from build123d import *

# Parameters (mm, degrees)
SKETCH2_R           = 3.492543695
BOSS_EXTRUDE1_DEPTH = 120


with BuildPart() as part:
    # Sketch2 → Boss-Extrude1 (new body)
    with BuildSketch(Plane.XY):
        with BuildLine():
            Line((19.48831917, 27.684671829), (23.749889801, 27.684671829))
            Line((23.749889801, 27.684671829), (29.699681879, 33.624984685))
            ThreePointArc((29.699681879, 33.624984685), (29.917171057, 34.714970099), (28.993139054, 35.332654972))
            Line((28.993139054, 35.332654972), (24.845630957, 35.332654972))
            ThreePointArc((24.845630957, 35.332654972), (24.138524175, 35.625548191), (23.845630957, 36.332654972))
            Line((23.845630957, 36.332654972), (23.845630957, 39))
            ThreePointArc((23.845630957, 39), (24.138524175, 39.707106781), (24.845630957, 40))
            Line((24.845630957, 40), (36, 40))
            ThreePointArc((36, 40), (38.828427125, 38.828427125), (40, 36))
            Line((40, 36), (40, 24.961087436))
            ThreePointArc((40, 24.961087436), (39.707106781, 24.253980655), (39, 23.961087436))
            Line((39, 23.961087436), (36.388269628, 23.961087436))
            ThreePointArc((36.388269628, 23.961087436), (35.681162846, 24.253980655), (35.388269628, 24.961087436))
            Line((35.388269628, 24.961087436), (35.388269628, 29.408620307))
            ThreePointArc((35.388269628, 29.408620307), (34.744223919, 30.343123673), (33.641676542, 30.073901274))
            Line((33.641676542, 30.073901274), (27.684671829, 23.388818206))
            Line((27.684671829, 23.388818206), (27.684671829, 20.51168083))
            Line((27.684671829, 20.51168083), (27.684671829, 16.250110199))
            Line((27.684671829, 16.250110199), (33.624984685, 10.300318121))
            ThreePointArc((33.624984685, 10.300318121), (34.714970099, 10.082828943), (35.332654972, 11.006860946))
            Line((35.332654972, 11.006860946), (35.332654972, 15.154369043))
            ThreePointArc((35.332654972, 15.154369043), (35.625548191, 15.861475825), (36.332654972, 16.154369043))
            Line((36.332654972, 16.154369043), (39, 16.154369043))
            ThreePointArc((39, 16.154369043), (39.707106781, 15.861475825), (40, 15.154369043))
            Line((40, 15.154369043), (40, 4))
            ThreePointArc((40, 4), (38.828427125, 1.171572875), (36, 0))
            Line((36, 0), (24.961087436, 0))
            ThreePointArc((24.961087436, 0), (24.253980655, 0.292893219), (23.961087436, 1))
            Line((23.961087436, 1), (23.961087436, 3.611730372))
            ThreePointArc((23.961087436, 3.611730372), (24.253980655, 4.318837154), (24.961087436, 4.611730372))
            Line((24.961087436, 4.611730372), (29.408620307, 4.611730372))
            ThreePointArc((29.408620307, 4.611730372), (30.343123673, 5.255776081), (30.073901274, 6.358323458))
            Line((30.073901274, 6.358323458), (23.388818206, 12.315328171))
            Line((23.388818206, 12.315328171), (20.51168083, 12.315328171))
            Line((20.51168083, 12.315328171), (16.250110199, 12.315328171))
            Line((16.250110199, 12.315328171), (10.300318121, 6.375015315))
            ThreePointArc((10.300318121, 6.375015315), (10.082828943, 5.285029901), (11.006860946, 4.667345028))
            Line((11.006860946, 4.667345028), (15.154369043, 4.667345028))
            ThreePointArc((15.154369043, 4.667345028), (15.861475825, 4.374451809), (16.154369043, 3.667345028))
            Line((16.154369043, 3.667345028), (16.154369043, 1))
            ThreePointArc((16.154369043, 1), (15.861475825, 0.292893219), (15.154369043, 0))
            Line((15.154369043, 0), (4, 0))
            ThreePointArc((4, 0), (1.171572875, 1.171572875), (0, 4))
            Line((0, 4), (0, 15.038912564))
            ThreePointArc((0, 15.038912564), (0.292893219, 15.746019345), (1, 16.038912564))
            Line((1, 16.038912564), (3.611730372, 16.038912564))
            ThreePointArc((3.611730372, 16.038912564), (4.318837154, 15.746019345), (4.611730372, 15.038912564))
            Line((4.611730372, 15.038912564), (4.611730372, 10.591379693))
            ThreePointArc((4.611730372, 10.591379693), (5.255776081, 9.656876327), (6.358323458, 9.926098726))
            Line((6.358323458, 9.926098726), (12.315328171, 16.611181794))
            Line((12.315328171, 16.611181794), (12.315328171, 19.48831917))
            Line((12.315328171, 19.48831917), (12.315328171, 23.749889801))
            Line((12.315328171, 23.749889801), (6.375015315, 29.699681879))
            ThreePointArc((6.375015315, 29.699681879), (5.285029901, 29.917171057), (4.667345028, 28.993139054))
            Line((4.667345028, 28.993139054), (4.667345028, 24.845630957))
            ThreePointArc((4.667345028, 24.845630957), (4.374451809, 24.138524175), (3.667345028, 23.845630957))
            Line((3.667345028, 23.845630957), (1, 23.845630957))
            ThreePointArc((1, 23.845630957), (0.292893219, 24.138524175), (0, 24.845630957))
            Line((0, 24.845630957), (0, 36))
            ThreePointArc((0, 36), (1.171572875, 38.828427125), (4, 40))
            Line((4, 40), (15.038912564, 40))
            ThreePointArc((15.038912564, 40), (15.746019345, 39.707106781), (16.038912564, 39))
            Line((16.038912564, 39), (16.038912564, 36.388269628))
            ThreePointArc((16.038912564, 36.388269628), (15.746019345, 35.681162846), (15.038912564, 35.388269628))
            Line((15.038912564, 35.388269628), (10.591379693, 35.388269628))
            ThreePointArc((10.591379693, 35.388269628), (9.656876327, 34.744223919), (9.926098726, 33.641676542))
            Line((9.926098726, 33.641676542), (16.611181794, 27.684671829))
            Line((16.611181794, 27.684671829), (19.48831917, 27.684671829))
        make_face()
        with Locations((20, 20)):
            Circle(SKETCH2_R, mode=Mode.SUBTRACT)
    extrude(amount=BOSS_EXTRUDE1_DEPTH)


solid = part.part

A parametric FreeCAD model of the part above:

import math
import FreeCAD as App
import Part
import Sketcher

doc = App.newDocument("Part")
body = doc.addObject("PartDesign::Body", "Body")

sketch1 = body.newObject("Sketcher::SketchObject", "Sketch")
sketch1.AttachmentSupport = (doc.getObject("XY_Plane"), [""])
sketch1.MapMode = "FlatFace"
sketch1.addGeometry(Part.LineSegment(App.Vector(29.7, 33.6, 0), App.Vector(23.7, 27.7, 0)), False)
sketch1.addGeometry(Part.LineSegment(App.Vector(23.7, 27.7, 0), App.Vector(16.6, 27.7, 0)), False)
sketch1.addGeometry(Part.LineSegment(App.Vector(16.6, 27.7, 0), App.Vector(9.9, 33.6, 0)), False)
sketch1.addGeometry(Part.ArcOfCircle(Part.Circle(App.Vector(10.6, 34.4, 0), App.Vector(0, 0, 1), 1), math.radians(90), math.radians(228)), False)
sketch1.addGeometry(Part.LineSegment(App.Vector(10.6, 35.4, 0), App.Vector(15, 35.4, 0)), False)
sketch1.addGeometry(Part.ArcOfCircle(Part.Circle(App.Vector(15, 36.4, 0), App.Vector(0, 0, 1), 1), math.radians(-90), math.radians(0)), False)
sketch1.addGeometry(Part.LineSegment(App.Vector(16, 36.4, 0), App.Vector(16, 39, 0)), False)
sketch1.addGeometry(Part.ArcOfCircle(Part.Circle(App.Vector(15, 39, 0), App.Vector(0, 0, 1), 1), math.radians(0), math.radians(90)), False)
sketch1.addGeometry(Part.LineSegment(App.Vector(15, 40, 0), App.Vector(4, 40, 0)), False)
sketch1.addGeometry(Part.ArcOfCircle(Part.Circle(App.Vector(4, 36, 0), App.Vector(0, 0, 1), 4), math.radians(90), math.radians(180)), False)
sketch1.addGeometry(Part.LineSegment(App.Vector(0, 36, 0), App.Vector(0, 24.8, 0)), False)
sketch1.addGeometry(Part.ArcOfCircle(Part.Circle(App.Vector(1, 24.8, 0), App.Vector(0, 0, 1), 1), math.radians(180), math.radians(270)), False)
sketch1.addGeometry(Part.LineSegment(App.Vector(1, 23.8, 0), App.Vector(3.7, 23.8, 0)), False)
sketch1.addGeometry(Part.ArcOfCircle(Part.Circle(App.Vector(3.7, 24.8, 0), App.Vector(0, 0, 1), 1), math.radians(-90), math.radians(0)), False)
sketch1.addGeometry(Part.LineSegment(App.Vector(4.7, 24.8, 0), App.Vector(4.7, 29, 0)), False)
sketch1.addGeometry(Part.ArcOfCircle(Part.Circle(App.Vector(5.7, 29, 0), App.Vector(0, 0, 1), 1), math.radians(45), math.radians(180)), False)
sketch1.addGeometry(Part.LineSegment(App.Vector(6.4, 29.7, 0), App.Vector(12.3, 23.7, 0)), False)
sketch1.addGeometry(Part.LineSegment(App.Vector(12.3, 23.7, 0), App.Vector(12.3, 16.6, 0)), False)
sketch1.addGeometry(Part.LineSegment(App.Vector(12.3, 16.6, 0), App.Vector(6.4, 9.9, 0)), False)
sketch1.addGeometry(Part.ArcOfCircle(Part.Circle(App.Vector(5.6, 10.6, 0), App.Vector(0, 0, 1), 1), math.radians(-180), math.radians(-42)), False)
sketch1.addGeometry(Part.LineSegment(App.Vector(4.6, 10.6, 0), App.Vector(4.6, 15, 0)), False)
sketch1.addGeometry(Part.ArcOfCircle(Part.Circle(App.Vector(3.6, 15, 0), App.Vector(0, 0, 1), 1), math.radians(0), math.radians(90)), False)
sketch1.addGeometry(Part.LineSegment(App.Vector(3.6, 16, 0), App.Vector(1, 16, 0)), False)
sketch1.addGeometry(Part.ArcOfCircle(Part.Circle(App.Vector(1, 15, 0), App.Vector(0, 0, 1), 1), math.radians(90), math.radians(180)), False)
sketch1.addGeometry(Part.LineSegment(App.Vector(0, 15, 0), App.Vector(0, 4, 0)), False)
sketch1.addGeometry(Part.ArcOfCircle(Part.Circle(App.Vector(4, 4, 0), App.Vector(0, 0, 1), 4), math.radians(180), math.radians(270)), False)
sketch1.addGeometry(Part.LineSegment(App.Vector(4, 0, 0), App.Vector(15.2, 0, 0)), False)
sketch1.addGeometry(Part.ArcOfCircle(Part.Circle(App.Vector(15.2, 1, 0), App.Vector(0, 0, 1), 1), math.radians(-90), math.radians(0)), False)
sketch1.addGeometry(Part.LineSegment(App.Vector(16.2, 1, 0), App.Vector(16.2, 3.7, 0)), False)
sketch1.addGeometry(Part.ArcOfCircle(Part.Circle(App.Vector(15.2, 3.7, 0), App.Vector(0, 0, 1), 1), math.radians(0), math.radians(90)), False)
sketch1.addGeometry(Part.LineSegment(App.Vector(15.2, 4.7, 0), App.Vector(11, 4.7, 0)), False)
sketch1.addGeometry(Part.ArcOfCircle(Part.Circle(App.Vector(11, 5.7, 0), App.Vector(0, 0, 1), 1), math.radians(135), math.radians(270)), False)
sketch1.addGeometry(Part.LineSegment(App.Vector(10.3, 6.4, 0), App.Vector(16.3, 12.3, 0)), False)
sketch1.addGeometry(Part.LineSegment(App.Vector(16.3, 12.3, 0), App.Vector(23.4, 12.3, 0)), False)
sketch1.addGeometry(Part.LineSegment(App.Vector(23.4, 12.3, 0), App.Vector(30.1, 6.4, 0)), False)
sketch1.addGeometry(Part.ArcOfCircle(Part.Circle(App.Vector(29.4, 5.6, 0), App.Vector(0, 0, 1), 1), math.radians(-90), math.radians(48)), False)
sketch1.addGeometry(Part.LineSegment(App.Vector(29.4, 4.6, 0), App.Vector(25, 4.6, 0)), False)
sketch1.addGeometry(Part.ArcOfCircle(Part.Circle(App.Vector(25, 3.6, 0), App.Vector(0, 0, 1), 1), math.radians(90), math.radians(180)), False)
sketch1.addGeometry(Part.LineSegment(App.Vector(24, 3.6, 0), App.Vector(24, 1, 0)), False)
sketch1.addGeometry(Part.ArcOfCircle(Part.Circle(App.Vector(25, 1, 0), App.Vector(0, 0, 1), 1), math.radians(-180), math.radians(-90)), False)
sketch1.addGeometry(Part.LineSegment(App.Vector(25, 0, 0), App.Vector(36, 0, 0)), False)
sketch1.addGeometry(Part.ArcOfCircle(Part.Circle(App.Vector(36, 4, 0), App.Vector(0, 0, 1), 4), math.radians(-90), math.radians(0)), False)
sketch1.addGeometry(Part.LineSegment(App.Vector(40, 4, 0), App.Vector(40, 15.2, 0)), False)
sketch1.addGeometry(Part.ArcOfCircle(Part.Circle(App.Vector(39, 15.2, 0), App.Vector(0, 0, 1), 1), math.radians(0), math.radians(90)), False)
sketch1.addGeometry(Part.LineSegment(App.Vector(39, 16.2, 0), App.Vector(36.3, 16.2, 0)), False)
sketch1.addGeometry(Part.ArcOfCircle(Part.Circle(App.Vector(36.3, 15.2, 0), App.Vector(0, 0, 1), 1), math.radians(90), math.radians(180)), False)
sketch1.addGeometry(Part.LineSegment(App.Vector(35.3, 15.2, 0), App.Vector(35.3, 11, 0)), False)
sketch1.addGeometry(Part.ArcOfCircle(Part.Circle(App.Vector(34.3, 11, 0), App.Vector(0, 0, 1), 1), math.radians(-135), math.radians(0)), False)
sketch1.addGeometry(Part.LineSegment(App.Vector(33.6, 10.3, 0), App.Vector(27.7, 16.3, 0)), False)
sketch1.addGeometry(Part.LineSegment(App.Vector(27.7, 16.3, 0), App.Vector(27.7, 23.4, 0)), False)
sketch1.addGeometry(Part.LineSegment(App.Vector(27.7, 23.4, 0), App.Vector(33.6, 30.1, 0)), False)
sketch1.addGeometry(Part.ArcOfCircle(Part.Circle(App.Vector(34.4, 29.4, 0), App.Vector(0, 0, 1), 1), math.radians(0), math.radians(138)), False)
sketch1.addGeometry(Part.LineSegment(App.Vector(35.4, 29.4, 0), App.Vector(35.4, 25, 0)), False)
sketch1.addGeometry(Part.ArcOfCircle(Part.Circle(App.Vector(36.4, 25, 0), App.Vector(0, 0, 1), 1), math.radians(180), math.radians(270)), False)
sketch1.addGeometry(Part.LineSegment(App.Vector(36.4, 24, 0), App.Vector(39, 24, 0)), False)
sketch1.addGeometry(Part.ArcOfCircle(Part.Circle(App.Vector(39, 25, 0), App.Vector(0, 0, 1), 1), math.radians(-90), math.radians(0)), False)
sketch1.addGeometry(Part.LineSegment(App.Vector(40, 25, 0), App.Vector(40, 36, 0)), False)
sketch1.addGeometry(Part.ArcOfCircle(Part.Circle(App.Vector(36, 36, 0), App.Vector(0, 0, 1), 4), math.radians(0), math.radians(90)), False)
sketch1.addGeometry(Part.LineSegment(App.Vector(36, 40, 0), App.Vector(24.8, 40, 0)), False)
sketch1.addGeometry(Part.ArcOfCircle(Part.Circle(App.Vector(24.8, 39, 0), App.Vector(0, 0, 1), 1), math.radians(90), math.radians(180)), False)
sketch1.addGeometry(Part.LineSegment(App.Vector(23.8, 39, 0), App.Vector(23.8, 36.3, 0)), False)
sketch1.addGeometry(Part.ArcOfCircle(Part.Circle(App.Vector(24.8, 36.3, 0), App.Vector(0, 0, 1), 1), math.radians(180), math.radians(270)), False)
sketch1.addGeometry(Part.LineSegment(App.Vector(24.8, 35.3, 0), App.Vector(29, 35.3, 0)), False)
sketch1.addGeometry(Part.ArcOfCircle(Part.Circle(App.Vector(29, 34.3, 0), App.Vector(0, 0, 1), 1), math.radians(-45), math.radians(90)), False)
sketch1.addGeometry(Part.Circle(App.Vector(20, 20, 0), App.Vector(0, 0, 1), 3.5), False)
sketch1.addConstraint(Sketcher.Constraint("Coincident", 0, 2, 1, 1))
sketch1.addConstraint(Sketcher.Constraint("Coincident", 1, 2, 2, 1))
sketch1.addConstraint(Sketcher.Constraint("Tangent", 2, 2, 3, 2))
sketch1.addConstraint(Sketcher.Constraint("Tangent", 3, 1, 4, 1))
sketch1.addConstraint(Sketcher.Constraint("Tangent", 4, 2, 5, 1))
sketch1.addConstraint(Sketcher.Constraint("Tangent", 5, 2, 6, 1))
sketch1.addConstraint(Sketcher.Constraint("Tangent", 6, 2, 7, 1))
sketch1.addConstraint(Sketcher.Constraint("Tangent", 7, 2, 8, 1))
sketch1.addConstraint(Sketcher.Constraint("Tangent", 8, 2, 9, 1))
sketch1.addConstraint(Sketcher.Constraint("Tangent", 9, 2, 10, 1))
sketch1.addConstraint(Sketcher.Constraint("Tangent", 10, 2, 11, 1))
sketch1.addConstraint(Sketcher.Constraint("Tangent", 11, 2, 12, 1))
sketch1.addConstraint(Sketcher.Constraint("Tangent", 12, 2, 13, 1))
sketch1.addConstraint(Sketcher.Constraint("Tangent", 13, 2, 14, 1))
sketch1.addConstraint(Sketcher.Constraint("Tangent", 14, 2, 15, 2))
sketch1.addConstraint(Sketcher.Constraint("Tangent", 15, 1, 16, 1))
sketch1.addConstraint(Sketcher.Constraint("Coincident", 16, 2, 17, 1))
sketch1.addConstraint(Sketcher.Constraint("Coincident", 17, 2, 18, 1))
sketch1.addConstraint(Sketcher.Constraint("Tangent", 18, 2, 19, 2))
sketch1.addConstraint(Sketcher.Constraint("Tangent", 19, 1, 20, 1))
sketch1.addConstraint(Sketcher.Constraint("Tangent", 20, 2, 21, 1))
sketch1.addConstraint(Sketcher.Constraint("Tangent", 21, 2, 22, 1))
sketch1.addConstraint(Sketcher.Constraint("Tangent", 22, 2, 23, 1))
sketch1.addConstraint(Sketcher.Constraint("Tangent", 23, 2, 24, 1))
sketch1.addConstraint(Sketcher.Constraint("Tangent", 24, 2, 25, 1))
sketch1.addConstraint(Sketcher.Constraint("Tangent", 25, 2, 26, 1))
sketch1.addConstraint(Sketcher.Constraint("Tangent", 26, 2, 27, 1))
sketch1.addConstraint(Sketcher.Constraint("Tangent", 27, 2, 28, 1))
sketch1.addConstraint(Sketcher.Constraint("Tangent", 28, 2, 29, 1))
sketch1.addConstraint(Sketcher.Constraint("Tangent", 29, 2, 30, 1))
sketch1.addConstraint(Sketcher.Constraint("Tangent", 30, 2, 31, 2))
sketch1.addConstraint(Sketcher.Constraint("Tangent", 31, 1, 32, 1))
sketch1.addConstraint(Sketcher.Constraint("Coincident", 32, 2, 33, 1))
sketch1.addConstraint(Sketcher.Constraint("Coincident", 33, 2, 34, 1))
sketch1.addConstraint(Sketcher.Constraint("Tangent", 34, 2, 35, 2))
sketch1.addConstraint(Sketcher.Constraint("Tangent", 35, 1, 36, 1))
sketch1.addConstraint(Sketcher.Constraint("Tangent", 36, 2, 37, 1))
sketch1.addConstraint(Sketcher.Constraint("Tangent", 37, 2, 38, 1))
sketch1.addConstraint(Sketcher.Constraint("Tangent", 38, 2, 39, 1))
sketch1.addConstraint(Sketcher.Constraint("Tangent", 39, 2, 40, 1))
sketch1.addConstraint(Sketcher.Constraint("Tangent", 40, 2, 41, 1))
sketch1.addConstraint(Sketcher.Constraint("Tangent", 41, 2, 42, 1))
sketch1.addConstraint(Sketcher.Constraint("Tangent", 42, 2, 43, 1))
sketch1.addConstraint(Sketcher.Constraint("Tangent", 43, 2, 44, 1))
sketch1.addConstraint(Sketcher.Constraint("Tangent", 44, 2, 45, 1))
sketch1.addConstraint(Sketcher.Constraint("Tangent", 45, 2, 46, 1))
sketch1.addConstraint(Sketcher.Constraint("Tangent", 46, 2, 47, 2))
sketch1.addConstraint(Sketcher.Constraint("Tangent", 47, 1, 48, 1))
sketch1.addConstraint(Sketcher.Constraint("Coincident", 48, 2, 49, 1))
sketch1.addConstraint(Sketcher.Constraint("Coincident", 49, 2, 50, 1))
sketch1.addConstraint(Sketcher.Constraint("Tangent", 50, 2, 51, 2))
sketch1.addConstraint(Sketcher.Constraint("Tangent", 51, 1, 52, 1))
sketch1.addConstraint(Sketcher.Constraint("Tangent", 52, 2, 53, 1))
sketch1.addConstraint(Sketcher.Constraint("Tangent", 53, 2, 54, 1))
sketch1.addConstraint(Sketcher.Constraint("Tangent", 54, 2, 55, 1))
sketch1.addConstraint(Sketcher.Constraint("Tangent", 55, 2, 56, 1))
sketch1.addConstraint(Sketcher.Constraint("Tangent", 56, 2, 57, 1))
sketch1.addConstraint(Sketcher.Constraint("Tangent", 57, 2, 58, 1))
sketch1.addConstraint(Sketcher.Constraint("Tangent", 58, 2, 59, 1))
sketch1.addConstraint(Sketcher.Constraint("Tangent", 59, 2, 60, 1))
sketch1.addConstraint(Sketcher.Constraint("Tangent", 60, 2, 61, 1))
sketch1.addConstraint(Sketcher.Constraint("Tangent", 61, 2, 62, 1))
sketch1.addConstraint(Sketcher.Constraint("Tangent", 62, 2, 63, 2))
sketch1.addConstraint(Sketcher.Constraint("Tangent", 63, 1, 0, 1))
sketch1.addConstraint(Sketcher.Constraint("Horizontal", 1))
sketch1.addConstraint(Sketcher.Constraint("Horizontal", 4))
sketch1.addConstraint(Sketcher.Constraint("Vertical", 6))
sketch1.addConstraint(Sketcher.Constraint("Horizontal", 8))
sketch1.addConstraint(Sketcher.Constraint("Vertical", 10))
sketch1.addConstraint(Sketcher.Constraint("Horizontal", 12))
sketch1.addConstraint(Sketcher.Constraint("Vertical", 14))
sketch1.addConstraint(Sketcher.Constraint("Vertical", 17))
sketch1.addConstraint(Sketcher.Constraint("Vertical", 20))
sketch1.addConstraint(Sketcher.Constraint("Horizontal", 22))
sketch1.addConstraint(Sketcher.Constraint("Vertical", 24))
sketch1.addConstraint(Sketcher.Constraint("Horizontal", 26))
sketch1.addConstraint(Sketcher.Constraint("Vertical", 28))
sketch1.addConstraint(Sketcher.Constraint("Horizontal", 30))
sketch1.addConstraint(Sketcher.Constraint("Horizontal", 33))
sketch1.addConstraint(Sketcher.Constraint("Horizontal", 36))
sketch1.addConstraint(Sketcher.Constraint("Vertical", 38))
sketch1.addConstraint(Sketcher.Constraint("Horizontal", 40))
sketch1.addConstraint(Sketcher.Constraint("Vertical", 42))
sketch1.addConstraint(Sketcher.Constraint("Horizontal", 44))
sketch1.addConstraint(Sketcher.Constraint("Vertical", 46))
sketch1.addConstraint(Sketcher.Constraint("Vertical", 49))
sketch1.addConstraint(Sketcher.Constraint("Vertical", 52))
sketch1.addConstraint(Sketcher.Constraint("Horizontal", 54))
sketch1.addConstraint(Sketcher.Constraint("Vertical", 56))
sketch1.addConstraint(Sketcher.Constraint("Horizontal", 58))
sketch1.addConstraint(Sketcher.Constraint("Vertical", 60))
sketch1.addConstraint(Sketcher.Constraint("Horizontal", 62))
sketch1.addConstraint(Sketcher.Constraint("Equal", 3, 5))
sketch1.addConstraint(Sketcher.Constraint("Equal", 5, 7))
sketch1.addConstraint(Sketcher.Constraint("Equal", 7, 11))
sketch1.addConstraint(Sketcher.Constraint("Equal", 11, 13))
sketch1.addConstraint(Sketcher.Constraint("Equal", 13, 15))
sketch1.addConstraint(Sketcher.Constraint("Equal", 15, 19))
sketch1.addConstraint(Sketcher.Constraint("Equal", 19, 21))
sketch1.addConstraint(Sketcher.Constraint("Equal", 21, 23))
sketch1.addConstraint(Sketcher.Constraint("Equal", 9, 25))
sketch1.addConstraint(Sketcher.Constraint("Equal", 23, 27))
sketch1.addConstraint(Sketcher.Constraint("Equal", 27, 29))
sketch1.addConstraint(Sketcher.Constraint("Equal", 29, 31))
sketch1.addConstraint(Sketcher.Constraint("Equal", 31, 35))
sketch1.addConstraint(Sketcher.Constraint("Equal", 35, 37))
sketch1.addConstraint(Sketcher.Constraint("Equal", 37, 39))
sketch1.addConstraint(Sketcher.Constraint("Equal", 25, 41))
sketch1.addConstraint(Sketcher.Constraint("Equal", 39, 43))
sketch1.addConstraint(Sketcher.Constraint("Equal", 43, 45))
sketch1.addConstraint(Sketcher.Constraint("Equal", 45, 47))
sketch1.addConstraint(Sketcher.Constraint("Equal", 47, 51))
sketch1.addConstraint(Sketcher.Constraint("Equal", 51, 53))
sketch1.addConstraint(Sketcher.Constraint("Equal", 53, 55))
sketch1.addConstraint(Sketcher.Constraint("Equal", 41, 57))
sketch1.addConstraint(Sketcher.Constraint("Equal", 55, 59))
sketch1.addConstraint(Sketcher.Constraint("Equal", 59, 61))
sketch1.addConstraint(Sketcher.Constraint("Equal", 61, 63))
sketch1.addConstraint(Sketcher.Constraint("PointOnObject", 9, 2, -2))
sketch1.addConstraint(Sketcher.Constraint("PointOnObject", 23, 2, -2))
sketch1.addConstraint(Sketcher.Constraint("PointOnObject", 25, 2, -1))
sketch1.addConstraint(Sketcher.Constraint("PointOnObject", 39, 2, -1))
sketch1.addConstraint(Sketcher.Constraint("Perpendicular", 0, 16))
sketch1.addConstraint(Sketcher.Constraint("Perpendicular", 2, 18))
sketch1.addConstraint(Sketcher.Constraint("Perpendicular", 16, 32))
sketch1.addConstraint(Sketcher.Constraint("Perpendicular", 18, 34))
sketch1.addConstraint(Sketcher.Constraint("Perpendicular", 32, 48))
sketch1.addConstraint(Sketcher.Constraint("Perpendicular", 34, 50))
sketch1.addConstraint(Sketcher.Constraint("Horizontal", 9, 3, 57, 3))
sketch1.addConstraint(Sketcher.Constraint("Vertical", 43, 3, 55, 3))
sketch1.addConstraint(Sketcher.Constraint("Equal", 1, 33))
sketch1.addConstraint(Sketcher.Constraint("Equal", 4, 36))
sketch1.addConstraint(Sketcher.Constraint("Equal", 8, 40))
sketch1.addConstraint(Sketcher.Constraint("Equal", 12, 44))
sketch1.addConstraint(Sketcher.Constraint("Equal", 22, 54))
sketch1.addConstraint(Sketcher.Constraint("Equal", 26, 58))
sketch1.addConstraint(Sketcher.Constraint("Equal", 30, 62))
sketch1.addConstraint(Sketcher.Constraint("Equal", 54, 6))
sketch1.addConstraint(Sketcher.Constraint("Equal", 58, 10))
sketch1.addConstraint(Sketcher.Constraint("Equal", 62, 14))
sketch1.addConstraint(Sketcher.Constraint("Equal", 33, 17))
sketch1.addConstraint(Sketcher.Constraint("Equal", 36, 20))
sketch1.addConstraint(Sketcher.Constraint("Equal", 40, 24))
sketch1.addConstraint(Sketcher.Constraint("Equal", 44, 28))
sketch1.addConstraint(Sketcher.Constraint("Equal", 6, 38))
sketch1.addConstraint(Sketcher.Constraint("Equal", 10, 42))
sketch1.addConstraint(Sketcher.Constraint("Equal", 14, 46))
sketch1.addConstraint(Sketcher.Constraint("Equal", 17, 49))
sketch1.addConstraint(Sketcher.Constraint("Equal", 20, 52))
sketch1.addConstraint(Sketcher.Constraint("Equal", 24, 56))
sketch1.addConstraint(Sketcher.Constraint("Equal", 28, 60))
sketch1.addConstraint(Sketcher.Constraint("Equal", 0, 16))
sketch1.addConstraint(Sketcher.Constraint("Radius", 3, 1.0))
sketch1.addConstraint(Sketcher.Constraint("Radius", 9, 4.0))
sketch1.addConstraint(Sketcher.Constraint("DistanceY", -1, 1, 7, 3, 39.0))
sketch1.addConstraint(Sketcher.Constraint("DistanceX", -1, 1, 64, 3, 20.0))
sketch1.addConstraint(Sketcher.Constraint("DistanceY", -1, 1, 64, 3, 20.0))
sketch1.addConstraint(Sketcher.Constraint("Diameter", 64, 6.985087))
sketch1.addConstraint(Sketcher.Constraint("DistanceX", 1, 2, 1, 1, 7.138708))
sketch1.addConstraint(Sketcher.Constraint("DistanceX", 22, 2, 22, 1, 2.61173))
sketch1.addConstraint(Sketcher.Constraint("DistanceX", 26, 1, 26, 2, 11.154369))
sketch1.addConstraint(Sketcher.Constraint("DistanceX", 30, 2, 30, 1, 4.147508))
sketch1.addConstraint(Sketcher.Constraint("DistanceX", -1, 1, 2, 2, 9.926099))
sketch1.addConstraint(Sketcher.Constraint("Distance", 2, 8.954119))
sketch1.addConstraint(Sketcher.Constraint("DistanceX", 4, 1, 4, 2, 4.447533))
sketch1.addConstraint(Sketcher.Constraint("DistanceX", 8, 2, 8, 1, 11.038913))
sketch1.addConstraint(Sketcher.Constraint("DistanceX", 12, 1, 12, 2, 2.667345))
pad1 = body.newObject("PartDesign::Pad", "Pad")
pad1.Profile = sketch1
pad1.Length = 120

doc.recompute()
